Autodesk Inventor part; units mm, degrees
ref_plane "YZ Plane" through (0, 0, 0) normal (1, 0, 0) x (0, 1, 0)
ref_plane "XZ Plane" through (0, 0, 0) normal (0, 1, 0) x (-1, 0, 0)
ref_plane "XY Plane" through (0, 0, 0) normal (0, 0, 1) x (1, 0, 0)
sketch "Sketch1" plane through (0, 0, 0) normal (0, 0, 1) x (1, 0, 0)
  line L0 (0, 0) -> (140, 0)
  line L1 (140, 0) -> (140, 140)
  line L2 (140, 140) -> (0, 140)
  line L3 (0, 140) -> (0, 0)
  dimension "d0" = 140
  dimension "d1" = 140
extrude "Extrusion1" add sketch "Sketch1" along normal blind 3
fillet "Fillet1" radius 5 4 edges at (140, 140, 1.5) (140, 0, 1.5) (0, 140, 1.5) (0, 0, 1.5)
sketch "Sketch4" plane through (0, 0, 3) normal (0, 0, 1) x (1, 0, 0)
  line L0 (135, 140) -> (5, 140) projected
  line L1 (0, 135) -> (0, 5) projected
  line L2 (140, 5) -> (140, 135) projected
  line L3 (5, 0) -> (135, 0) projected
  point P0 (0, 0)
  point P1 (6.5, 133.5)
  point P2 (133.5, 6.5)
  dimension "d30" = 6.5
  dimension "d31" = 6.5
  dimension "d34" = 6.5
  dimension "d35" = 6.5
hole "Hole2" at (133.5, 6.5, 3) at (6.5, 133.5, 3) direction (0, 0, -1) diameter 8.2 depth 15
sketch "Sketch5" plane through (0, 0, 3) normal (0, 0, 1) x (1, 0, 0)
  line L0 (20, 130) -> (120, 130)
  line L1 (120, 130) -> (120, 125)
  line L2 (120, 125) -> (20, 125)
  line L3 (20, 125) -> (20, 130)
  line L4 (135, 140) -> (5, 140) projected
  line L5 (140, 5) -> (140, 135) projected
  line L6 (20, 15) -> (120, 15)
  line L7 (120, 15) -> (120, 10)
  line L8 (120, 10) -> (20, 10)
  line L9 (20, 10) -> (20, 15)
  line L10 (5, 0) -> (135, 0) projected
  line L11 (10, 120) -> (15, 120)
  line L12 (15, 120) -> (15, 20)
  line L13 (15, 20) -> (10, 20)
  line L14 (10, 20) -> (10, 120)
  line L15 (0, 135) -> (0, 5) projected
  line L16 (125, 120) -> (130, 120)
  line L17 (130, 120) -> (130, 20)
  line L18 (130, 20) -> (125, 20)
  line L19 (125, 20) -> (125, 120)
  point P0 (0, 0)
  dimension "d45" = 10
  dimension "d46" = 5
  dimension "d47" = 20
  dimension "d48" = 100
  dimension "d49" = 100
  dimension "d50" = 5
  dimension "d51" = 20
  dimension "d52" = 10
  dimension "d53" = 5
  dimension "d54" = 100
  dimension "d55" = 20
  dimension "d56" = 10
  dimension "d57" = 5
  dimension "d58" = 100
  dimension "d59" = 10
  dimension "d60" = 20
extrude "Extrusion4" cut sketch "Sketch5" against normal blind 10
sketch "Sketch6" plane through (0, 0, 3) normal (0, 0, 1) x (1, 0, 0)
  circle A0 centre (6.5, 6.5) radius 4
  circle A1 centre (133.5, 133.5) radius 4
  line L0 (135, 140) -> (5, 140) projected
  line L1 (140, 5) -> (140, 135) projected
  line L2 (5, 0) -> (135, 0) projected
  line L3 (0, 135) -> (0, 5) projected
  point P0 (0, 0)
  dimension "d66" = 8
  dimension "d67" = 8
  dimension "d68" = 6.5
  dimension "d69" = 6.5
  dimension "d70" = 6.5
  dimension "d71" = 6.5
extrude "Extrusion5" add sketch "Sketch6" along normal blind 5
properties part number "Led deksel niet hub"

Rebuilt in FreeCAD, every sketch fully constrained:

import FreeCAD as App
import Part
import Sketcher
from FreeCAD import Vector
Q = App.Units.Quantity


def edges_at(feature, points):
    """Names of the edges that pass closest to the given points."""
    edges = feature.Shape.Edges
    near = lambda p: min(range(len(edges)), key=lambda i: edges[i].distToShape(Part.Vertex(*p))[0])
    return sorted({f"Edge{near(p) + 1}" for p in points})


def add_polygon(sketch, points):
    """Adds a closed chain of lines whose ends are joined by coincident constraints."""
    first, n = sketch.GeometryCount, len(points)
    for a, b in zip(points, points[1:] + points[:1]):
        sketch.addGeometry(Part.LineSegment(App.Vector(*a, 0), App.Vector(*b, 0)), False)
    for i in range(n):
        sketch.addConstraint(Sketcher.Constraint("Coincident", first + i, 2, first + (i + 1) % n, 1))

doc = App.newDocument("Part")
body = doc.addObject("PartDesign::Body", "Body")

# Sketch on XY plane
sketch1 = body.newObject("Sketcher::SketchObject", "Sketch")
sketch1.AttachmentSupport = (doc.getObject("XY_Plane"), [""])
sketch1.MapMode = "FlatFace"
add_polygon(sketch1, [(0, 140), (0, 0), (140, 0), (140, 140)])  # lines 0-3
sketch1.addConstraint([
    Sketcher.Constraint("Vertical", 0),
    Sketcher.Constraint("Horizontal", 1),
    Sketcher.Constraint("Vertical", 2),
    Sketcher.Constraint("Horizontal", 3),
    Sketcher.Constraint("Coincident", 0, 2, -1, 1),
    Sketcher.Constraint("Equal", 3, 0),
    Sketcher.Constraint("DistanceX", 1, 1, 1, 2, Q("140 mm")),
])
pad1 = body.newObject("PartDesign::Pad", "Pad")
pad1.Profile = sketch1
pad1.Length = 3
doc.recompute()

fillet = body.newObject("PartDesign::Fillet", "Fillet")
fillet.Base = (pad1, edges_at(pad1, [
    (140, 140, 1.5),
    (140, 0, 1.5),
    (0, 140, 1.5),
    (0, 0, 1.5),
]))
fillet.Radius = 5

# Sketch on XY plane
sketch2 = body.newObject("Sketcher::SketchObject", "Sketch001")
sketch2.AttachmentSupport = (doc.getObject("XY_Plane"), [""])
sketch2.MapMode = "FlatFace"
sketch2.AttachmentOffset = App.Placement(Vector(0, 0, 3), App.Rotation())
sketch2.addGeometry([
    Part.Circle(Vector(133.5, 6.5, 0), Vector(0, 0, 1), 4.1),
    Part.Circle(Vector(6.5, 133.5, 0), Vector(0, 0, 1), 4.1),
], False)
sketch2.addConstraint([
    Sketcher.Constraint("Equal", 0, 1),
    Sketcher.Constraint("Diameter", 0, Q("8.2 mm")),
    Sketcher.Constraint("DistanceX", 1, 3, 0, 3, Q("127 mm")),
    Sketcher.Constraint("DistanceY", 0, 3, 1, 3, Q("127 mm")),
    Sketcher.Constraint("DistanceX", -1, 1, 0, 3, Q("133.5 mm")),
    Sketcher.Constraint("DistanceY", -1, 1, 0, 3, Q("6.5 mm")),
])
doc.recompute()
hole = body.newObject("PartDesign::Hole", "Hole")
hole.Profile = sketch2
hole.ThreadType = "None"
hole.Diameter = 8.2
hole.DepthType = "Dimension"
hole.Depth = 15
hole.DrillPoint = "Flat"

# Sketch on XY plane
sketch3 = body.newObject("Sketcher::SketchObject", "Sketch002")
sketch3.AttachmentSupport = (doc.getObject("XY_Plane"), [""])
sketch3.MapMode = "FlatFace"
sketch3.AttachmentOffset = App.Placement(Vector(0, 0, 3), App.Rotation())
add_polygon(sketch3, [(120, 130), (20, 130), (20, 125), (120, 125)])  # lines 0-3
add_polygon(sketch3, [(120, 15), (20, 15), (20, 10), (120, 10)])  # lines 4-7
add_polygon(sketch3, [(15, 120), (10, 120), (10, 20), (15, 20)])  # lines 8-11
add_polygon(sketch3, [(130, 120), (125, 120), (125, 20), (130, 20)])  # lines 12-15
sketch3.addConstraint([
    Sketcher.Constraint("Horizontal", 0),
    Sketcher.Constraint("Vertical", 1),
    Sketcher.Constraint("Horizontal", 2),
    Sketcher.Constraint("Vertical", 3),
    Sketcher.Constraint("Horizontal", 4),
    Sketcher.Constraint("Vertical", 5),
    Sketcher.Constraint("Horizontal", 6),
    Sketcher.Constraint("Vertical", 7),
    Sketcher.Constraint("Horizontal", 8),
    Sketcher.Constraint("Vertical", 9),
    Sketcher.Constraint("Horizontal", 10),
    Sketcher.Constraint("Vertical", 11),
    Sketcher.Constraint("Horizontal", 12),
    Sketcher.Constraint("Vertical", 13),
    Sketcher.Constraint("Horizontal", 14),
    Sketcher.Constraint("Vertical", 15),
    Sketcher.Constraint("Horizontal", 11, 2, 12, 2),
    Sketcher.Constraint("Horizontal", 10, 2, 13, 2),
    Sketcher.Constraint("Vertical", 1, 2, 4, 2),
    Sketcher.Constraint("Vertical", 3, 2, 6, 2),
    Sketcher.Constraint("Equal", 10, 12),
    Sketcher.Constraint("Equal", 14, 1),
    Sketcher.Constraint("Equal", 3, 5),
    Sketcher.Constraint("Equal", 6, 9),
    Sketcher.Constraint("DistanceX", 0, 2, 0, 1, Q("100 mm")),
    Sketcher.Constraint("DistanceX", 8, 2, 8, 1, Q("5 mm")),
    Sketcher.Constraint("DistanceX", -1, 1, 0, 2, Q("20 mm")),
    Sketcher.Constraint("DistanceY", -1, 1, 5, 2, Q("10 mm")),
    Sketcher.Constraint("DistanceX", -1, 1, 8, 2, Q("10 mm")),
    Sketcher.Constraint("DistanceY", -1, 1, 9, 2, Q("20 mm")),
    Sketcher.Constraint("DistanceY", 8, 2, 1, 2, Q("5 mm")),
    Sketcher.Constraint("DistanceX", 2, 2, 12, 2, Q("5 mm")),
])
pocket1 = body.newObject("PartDesign::Pocket", "Pocket")
pocket1.Profile = sketch3
pocket1.Length = 10

# Sketch on XY plane
sketch4 = body.newObject("Sketcher::SketchObject", "Sketch003")
sketch4.AttachmentSupport = (doc.getObject("XY_Plane"), [""])
sketch4.MapMode = "FlatFace"
sketch4.AttachmentOffset = App.Placement(Vector(0, 0, 3), App.Rotation())
sketch4.addGeometry([
    Part.Circle(Vector(6.5, 6.5, 0), Vector(0, 0, 1), 4),
    Part.Circle(Vector(133.5, 133.5, 0), Vector(0, 0, 1), 4),
], False)
sketch4.addConstraint([
    Sketcher.Constraint("Equal", 0, 1),
    Sketcher.Constraint("Diameter", 0, Q("8 mm")),
    Sketcher.Constraint("DistanceX", -1, 1, 0, 3, Q("6.5 mm")),
    Sketcher.Constraint("DistanceY", -1, 1, 0, 3, Q("6.5 mm")),
    Sketcher.Constraint("DistanceX", 0, 3, 1, 3, Q("127 mm")),
    Sketcher.Constraint("DistanceY", 0, 3, 1, 3, Q("127 mm")),
])
pad2 = body.newObject("PartDesign::Pad", "Pad001")
pad2.Profile = sketch4
pad2.Length = 5

doc.recompute()
